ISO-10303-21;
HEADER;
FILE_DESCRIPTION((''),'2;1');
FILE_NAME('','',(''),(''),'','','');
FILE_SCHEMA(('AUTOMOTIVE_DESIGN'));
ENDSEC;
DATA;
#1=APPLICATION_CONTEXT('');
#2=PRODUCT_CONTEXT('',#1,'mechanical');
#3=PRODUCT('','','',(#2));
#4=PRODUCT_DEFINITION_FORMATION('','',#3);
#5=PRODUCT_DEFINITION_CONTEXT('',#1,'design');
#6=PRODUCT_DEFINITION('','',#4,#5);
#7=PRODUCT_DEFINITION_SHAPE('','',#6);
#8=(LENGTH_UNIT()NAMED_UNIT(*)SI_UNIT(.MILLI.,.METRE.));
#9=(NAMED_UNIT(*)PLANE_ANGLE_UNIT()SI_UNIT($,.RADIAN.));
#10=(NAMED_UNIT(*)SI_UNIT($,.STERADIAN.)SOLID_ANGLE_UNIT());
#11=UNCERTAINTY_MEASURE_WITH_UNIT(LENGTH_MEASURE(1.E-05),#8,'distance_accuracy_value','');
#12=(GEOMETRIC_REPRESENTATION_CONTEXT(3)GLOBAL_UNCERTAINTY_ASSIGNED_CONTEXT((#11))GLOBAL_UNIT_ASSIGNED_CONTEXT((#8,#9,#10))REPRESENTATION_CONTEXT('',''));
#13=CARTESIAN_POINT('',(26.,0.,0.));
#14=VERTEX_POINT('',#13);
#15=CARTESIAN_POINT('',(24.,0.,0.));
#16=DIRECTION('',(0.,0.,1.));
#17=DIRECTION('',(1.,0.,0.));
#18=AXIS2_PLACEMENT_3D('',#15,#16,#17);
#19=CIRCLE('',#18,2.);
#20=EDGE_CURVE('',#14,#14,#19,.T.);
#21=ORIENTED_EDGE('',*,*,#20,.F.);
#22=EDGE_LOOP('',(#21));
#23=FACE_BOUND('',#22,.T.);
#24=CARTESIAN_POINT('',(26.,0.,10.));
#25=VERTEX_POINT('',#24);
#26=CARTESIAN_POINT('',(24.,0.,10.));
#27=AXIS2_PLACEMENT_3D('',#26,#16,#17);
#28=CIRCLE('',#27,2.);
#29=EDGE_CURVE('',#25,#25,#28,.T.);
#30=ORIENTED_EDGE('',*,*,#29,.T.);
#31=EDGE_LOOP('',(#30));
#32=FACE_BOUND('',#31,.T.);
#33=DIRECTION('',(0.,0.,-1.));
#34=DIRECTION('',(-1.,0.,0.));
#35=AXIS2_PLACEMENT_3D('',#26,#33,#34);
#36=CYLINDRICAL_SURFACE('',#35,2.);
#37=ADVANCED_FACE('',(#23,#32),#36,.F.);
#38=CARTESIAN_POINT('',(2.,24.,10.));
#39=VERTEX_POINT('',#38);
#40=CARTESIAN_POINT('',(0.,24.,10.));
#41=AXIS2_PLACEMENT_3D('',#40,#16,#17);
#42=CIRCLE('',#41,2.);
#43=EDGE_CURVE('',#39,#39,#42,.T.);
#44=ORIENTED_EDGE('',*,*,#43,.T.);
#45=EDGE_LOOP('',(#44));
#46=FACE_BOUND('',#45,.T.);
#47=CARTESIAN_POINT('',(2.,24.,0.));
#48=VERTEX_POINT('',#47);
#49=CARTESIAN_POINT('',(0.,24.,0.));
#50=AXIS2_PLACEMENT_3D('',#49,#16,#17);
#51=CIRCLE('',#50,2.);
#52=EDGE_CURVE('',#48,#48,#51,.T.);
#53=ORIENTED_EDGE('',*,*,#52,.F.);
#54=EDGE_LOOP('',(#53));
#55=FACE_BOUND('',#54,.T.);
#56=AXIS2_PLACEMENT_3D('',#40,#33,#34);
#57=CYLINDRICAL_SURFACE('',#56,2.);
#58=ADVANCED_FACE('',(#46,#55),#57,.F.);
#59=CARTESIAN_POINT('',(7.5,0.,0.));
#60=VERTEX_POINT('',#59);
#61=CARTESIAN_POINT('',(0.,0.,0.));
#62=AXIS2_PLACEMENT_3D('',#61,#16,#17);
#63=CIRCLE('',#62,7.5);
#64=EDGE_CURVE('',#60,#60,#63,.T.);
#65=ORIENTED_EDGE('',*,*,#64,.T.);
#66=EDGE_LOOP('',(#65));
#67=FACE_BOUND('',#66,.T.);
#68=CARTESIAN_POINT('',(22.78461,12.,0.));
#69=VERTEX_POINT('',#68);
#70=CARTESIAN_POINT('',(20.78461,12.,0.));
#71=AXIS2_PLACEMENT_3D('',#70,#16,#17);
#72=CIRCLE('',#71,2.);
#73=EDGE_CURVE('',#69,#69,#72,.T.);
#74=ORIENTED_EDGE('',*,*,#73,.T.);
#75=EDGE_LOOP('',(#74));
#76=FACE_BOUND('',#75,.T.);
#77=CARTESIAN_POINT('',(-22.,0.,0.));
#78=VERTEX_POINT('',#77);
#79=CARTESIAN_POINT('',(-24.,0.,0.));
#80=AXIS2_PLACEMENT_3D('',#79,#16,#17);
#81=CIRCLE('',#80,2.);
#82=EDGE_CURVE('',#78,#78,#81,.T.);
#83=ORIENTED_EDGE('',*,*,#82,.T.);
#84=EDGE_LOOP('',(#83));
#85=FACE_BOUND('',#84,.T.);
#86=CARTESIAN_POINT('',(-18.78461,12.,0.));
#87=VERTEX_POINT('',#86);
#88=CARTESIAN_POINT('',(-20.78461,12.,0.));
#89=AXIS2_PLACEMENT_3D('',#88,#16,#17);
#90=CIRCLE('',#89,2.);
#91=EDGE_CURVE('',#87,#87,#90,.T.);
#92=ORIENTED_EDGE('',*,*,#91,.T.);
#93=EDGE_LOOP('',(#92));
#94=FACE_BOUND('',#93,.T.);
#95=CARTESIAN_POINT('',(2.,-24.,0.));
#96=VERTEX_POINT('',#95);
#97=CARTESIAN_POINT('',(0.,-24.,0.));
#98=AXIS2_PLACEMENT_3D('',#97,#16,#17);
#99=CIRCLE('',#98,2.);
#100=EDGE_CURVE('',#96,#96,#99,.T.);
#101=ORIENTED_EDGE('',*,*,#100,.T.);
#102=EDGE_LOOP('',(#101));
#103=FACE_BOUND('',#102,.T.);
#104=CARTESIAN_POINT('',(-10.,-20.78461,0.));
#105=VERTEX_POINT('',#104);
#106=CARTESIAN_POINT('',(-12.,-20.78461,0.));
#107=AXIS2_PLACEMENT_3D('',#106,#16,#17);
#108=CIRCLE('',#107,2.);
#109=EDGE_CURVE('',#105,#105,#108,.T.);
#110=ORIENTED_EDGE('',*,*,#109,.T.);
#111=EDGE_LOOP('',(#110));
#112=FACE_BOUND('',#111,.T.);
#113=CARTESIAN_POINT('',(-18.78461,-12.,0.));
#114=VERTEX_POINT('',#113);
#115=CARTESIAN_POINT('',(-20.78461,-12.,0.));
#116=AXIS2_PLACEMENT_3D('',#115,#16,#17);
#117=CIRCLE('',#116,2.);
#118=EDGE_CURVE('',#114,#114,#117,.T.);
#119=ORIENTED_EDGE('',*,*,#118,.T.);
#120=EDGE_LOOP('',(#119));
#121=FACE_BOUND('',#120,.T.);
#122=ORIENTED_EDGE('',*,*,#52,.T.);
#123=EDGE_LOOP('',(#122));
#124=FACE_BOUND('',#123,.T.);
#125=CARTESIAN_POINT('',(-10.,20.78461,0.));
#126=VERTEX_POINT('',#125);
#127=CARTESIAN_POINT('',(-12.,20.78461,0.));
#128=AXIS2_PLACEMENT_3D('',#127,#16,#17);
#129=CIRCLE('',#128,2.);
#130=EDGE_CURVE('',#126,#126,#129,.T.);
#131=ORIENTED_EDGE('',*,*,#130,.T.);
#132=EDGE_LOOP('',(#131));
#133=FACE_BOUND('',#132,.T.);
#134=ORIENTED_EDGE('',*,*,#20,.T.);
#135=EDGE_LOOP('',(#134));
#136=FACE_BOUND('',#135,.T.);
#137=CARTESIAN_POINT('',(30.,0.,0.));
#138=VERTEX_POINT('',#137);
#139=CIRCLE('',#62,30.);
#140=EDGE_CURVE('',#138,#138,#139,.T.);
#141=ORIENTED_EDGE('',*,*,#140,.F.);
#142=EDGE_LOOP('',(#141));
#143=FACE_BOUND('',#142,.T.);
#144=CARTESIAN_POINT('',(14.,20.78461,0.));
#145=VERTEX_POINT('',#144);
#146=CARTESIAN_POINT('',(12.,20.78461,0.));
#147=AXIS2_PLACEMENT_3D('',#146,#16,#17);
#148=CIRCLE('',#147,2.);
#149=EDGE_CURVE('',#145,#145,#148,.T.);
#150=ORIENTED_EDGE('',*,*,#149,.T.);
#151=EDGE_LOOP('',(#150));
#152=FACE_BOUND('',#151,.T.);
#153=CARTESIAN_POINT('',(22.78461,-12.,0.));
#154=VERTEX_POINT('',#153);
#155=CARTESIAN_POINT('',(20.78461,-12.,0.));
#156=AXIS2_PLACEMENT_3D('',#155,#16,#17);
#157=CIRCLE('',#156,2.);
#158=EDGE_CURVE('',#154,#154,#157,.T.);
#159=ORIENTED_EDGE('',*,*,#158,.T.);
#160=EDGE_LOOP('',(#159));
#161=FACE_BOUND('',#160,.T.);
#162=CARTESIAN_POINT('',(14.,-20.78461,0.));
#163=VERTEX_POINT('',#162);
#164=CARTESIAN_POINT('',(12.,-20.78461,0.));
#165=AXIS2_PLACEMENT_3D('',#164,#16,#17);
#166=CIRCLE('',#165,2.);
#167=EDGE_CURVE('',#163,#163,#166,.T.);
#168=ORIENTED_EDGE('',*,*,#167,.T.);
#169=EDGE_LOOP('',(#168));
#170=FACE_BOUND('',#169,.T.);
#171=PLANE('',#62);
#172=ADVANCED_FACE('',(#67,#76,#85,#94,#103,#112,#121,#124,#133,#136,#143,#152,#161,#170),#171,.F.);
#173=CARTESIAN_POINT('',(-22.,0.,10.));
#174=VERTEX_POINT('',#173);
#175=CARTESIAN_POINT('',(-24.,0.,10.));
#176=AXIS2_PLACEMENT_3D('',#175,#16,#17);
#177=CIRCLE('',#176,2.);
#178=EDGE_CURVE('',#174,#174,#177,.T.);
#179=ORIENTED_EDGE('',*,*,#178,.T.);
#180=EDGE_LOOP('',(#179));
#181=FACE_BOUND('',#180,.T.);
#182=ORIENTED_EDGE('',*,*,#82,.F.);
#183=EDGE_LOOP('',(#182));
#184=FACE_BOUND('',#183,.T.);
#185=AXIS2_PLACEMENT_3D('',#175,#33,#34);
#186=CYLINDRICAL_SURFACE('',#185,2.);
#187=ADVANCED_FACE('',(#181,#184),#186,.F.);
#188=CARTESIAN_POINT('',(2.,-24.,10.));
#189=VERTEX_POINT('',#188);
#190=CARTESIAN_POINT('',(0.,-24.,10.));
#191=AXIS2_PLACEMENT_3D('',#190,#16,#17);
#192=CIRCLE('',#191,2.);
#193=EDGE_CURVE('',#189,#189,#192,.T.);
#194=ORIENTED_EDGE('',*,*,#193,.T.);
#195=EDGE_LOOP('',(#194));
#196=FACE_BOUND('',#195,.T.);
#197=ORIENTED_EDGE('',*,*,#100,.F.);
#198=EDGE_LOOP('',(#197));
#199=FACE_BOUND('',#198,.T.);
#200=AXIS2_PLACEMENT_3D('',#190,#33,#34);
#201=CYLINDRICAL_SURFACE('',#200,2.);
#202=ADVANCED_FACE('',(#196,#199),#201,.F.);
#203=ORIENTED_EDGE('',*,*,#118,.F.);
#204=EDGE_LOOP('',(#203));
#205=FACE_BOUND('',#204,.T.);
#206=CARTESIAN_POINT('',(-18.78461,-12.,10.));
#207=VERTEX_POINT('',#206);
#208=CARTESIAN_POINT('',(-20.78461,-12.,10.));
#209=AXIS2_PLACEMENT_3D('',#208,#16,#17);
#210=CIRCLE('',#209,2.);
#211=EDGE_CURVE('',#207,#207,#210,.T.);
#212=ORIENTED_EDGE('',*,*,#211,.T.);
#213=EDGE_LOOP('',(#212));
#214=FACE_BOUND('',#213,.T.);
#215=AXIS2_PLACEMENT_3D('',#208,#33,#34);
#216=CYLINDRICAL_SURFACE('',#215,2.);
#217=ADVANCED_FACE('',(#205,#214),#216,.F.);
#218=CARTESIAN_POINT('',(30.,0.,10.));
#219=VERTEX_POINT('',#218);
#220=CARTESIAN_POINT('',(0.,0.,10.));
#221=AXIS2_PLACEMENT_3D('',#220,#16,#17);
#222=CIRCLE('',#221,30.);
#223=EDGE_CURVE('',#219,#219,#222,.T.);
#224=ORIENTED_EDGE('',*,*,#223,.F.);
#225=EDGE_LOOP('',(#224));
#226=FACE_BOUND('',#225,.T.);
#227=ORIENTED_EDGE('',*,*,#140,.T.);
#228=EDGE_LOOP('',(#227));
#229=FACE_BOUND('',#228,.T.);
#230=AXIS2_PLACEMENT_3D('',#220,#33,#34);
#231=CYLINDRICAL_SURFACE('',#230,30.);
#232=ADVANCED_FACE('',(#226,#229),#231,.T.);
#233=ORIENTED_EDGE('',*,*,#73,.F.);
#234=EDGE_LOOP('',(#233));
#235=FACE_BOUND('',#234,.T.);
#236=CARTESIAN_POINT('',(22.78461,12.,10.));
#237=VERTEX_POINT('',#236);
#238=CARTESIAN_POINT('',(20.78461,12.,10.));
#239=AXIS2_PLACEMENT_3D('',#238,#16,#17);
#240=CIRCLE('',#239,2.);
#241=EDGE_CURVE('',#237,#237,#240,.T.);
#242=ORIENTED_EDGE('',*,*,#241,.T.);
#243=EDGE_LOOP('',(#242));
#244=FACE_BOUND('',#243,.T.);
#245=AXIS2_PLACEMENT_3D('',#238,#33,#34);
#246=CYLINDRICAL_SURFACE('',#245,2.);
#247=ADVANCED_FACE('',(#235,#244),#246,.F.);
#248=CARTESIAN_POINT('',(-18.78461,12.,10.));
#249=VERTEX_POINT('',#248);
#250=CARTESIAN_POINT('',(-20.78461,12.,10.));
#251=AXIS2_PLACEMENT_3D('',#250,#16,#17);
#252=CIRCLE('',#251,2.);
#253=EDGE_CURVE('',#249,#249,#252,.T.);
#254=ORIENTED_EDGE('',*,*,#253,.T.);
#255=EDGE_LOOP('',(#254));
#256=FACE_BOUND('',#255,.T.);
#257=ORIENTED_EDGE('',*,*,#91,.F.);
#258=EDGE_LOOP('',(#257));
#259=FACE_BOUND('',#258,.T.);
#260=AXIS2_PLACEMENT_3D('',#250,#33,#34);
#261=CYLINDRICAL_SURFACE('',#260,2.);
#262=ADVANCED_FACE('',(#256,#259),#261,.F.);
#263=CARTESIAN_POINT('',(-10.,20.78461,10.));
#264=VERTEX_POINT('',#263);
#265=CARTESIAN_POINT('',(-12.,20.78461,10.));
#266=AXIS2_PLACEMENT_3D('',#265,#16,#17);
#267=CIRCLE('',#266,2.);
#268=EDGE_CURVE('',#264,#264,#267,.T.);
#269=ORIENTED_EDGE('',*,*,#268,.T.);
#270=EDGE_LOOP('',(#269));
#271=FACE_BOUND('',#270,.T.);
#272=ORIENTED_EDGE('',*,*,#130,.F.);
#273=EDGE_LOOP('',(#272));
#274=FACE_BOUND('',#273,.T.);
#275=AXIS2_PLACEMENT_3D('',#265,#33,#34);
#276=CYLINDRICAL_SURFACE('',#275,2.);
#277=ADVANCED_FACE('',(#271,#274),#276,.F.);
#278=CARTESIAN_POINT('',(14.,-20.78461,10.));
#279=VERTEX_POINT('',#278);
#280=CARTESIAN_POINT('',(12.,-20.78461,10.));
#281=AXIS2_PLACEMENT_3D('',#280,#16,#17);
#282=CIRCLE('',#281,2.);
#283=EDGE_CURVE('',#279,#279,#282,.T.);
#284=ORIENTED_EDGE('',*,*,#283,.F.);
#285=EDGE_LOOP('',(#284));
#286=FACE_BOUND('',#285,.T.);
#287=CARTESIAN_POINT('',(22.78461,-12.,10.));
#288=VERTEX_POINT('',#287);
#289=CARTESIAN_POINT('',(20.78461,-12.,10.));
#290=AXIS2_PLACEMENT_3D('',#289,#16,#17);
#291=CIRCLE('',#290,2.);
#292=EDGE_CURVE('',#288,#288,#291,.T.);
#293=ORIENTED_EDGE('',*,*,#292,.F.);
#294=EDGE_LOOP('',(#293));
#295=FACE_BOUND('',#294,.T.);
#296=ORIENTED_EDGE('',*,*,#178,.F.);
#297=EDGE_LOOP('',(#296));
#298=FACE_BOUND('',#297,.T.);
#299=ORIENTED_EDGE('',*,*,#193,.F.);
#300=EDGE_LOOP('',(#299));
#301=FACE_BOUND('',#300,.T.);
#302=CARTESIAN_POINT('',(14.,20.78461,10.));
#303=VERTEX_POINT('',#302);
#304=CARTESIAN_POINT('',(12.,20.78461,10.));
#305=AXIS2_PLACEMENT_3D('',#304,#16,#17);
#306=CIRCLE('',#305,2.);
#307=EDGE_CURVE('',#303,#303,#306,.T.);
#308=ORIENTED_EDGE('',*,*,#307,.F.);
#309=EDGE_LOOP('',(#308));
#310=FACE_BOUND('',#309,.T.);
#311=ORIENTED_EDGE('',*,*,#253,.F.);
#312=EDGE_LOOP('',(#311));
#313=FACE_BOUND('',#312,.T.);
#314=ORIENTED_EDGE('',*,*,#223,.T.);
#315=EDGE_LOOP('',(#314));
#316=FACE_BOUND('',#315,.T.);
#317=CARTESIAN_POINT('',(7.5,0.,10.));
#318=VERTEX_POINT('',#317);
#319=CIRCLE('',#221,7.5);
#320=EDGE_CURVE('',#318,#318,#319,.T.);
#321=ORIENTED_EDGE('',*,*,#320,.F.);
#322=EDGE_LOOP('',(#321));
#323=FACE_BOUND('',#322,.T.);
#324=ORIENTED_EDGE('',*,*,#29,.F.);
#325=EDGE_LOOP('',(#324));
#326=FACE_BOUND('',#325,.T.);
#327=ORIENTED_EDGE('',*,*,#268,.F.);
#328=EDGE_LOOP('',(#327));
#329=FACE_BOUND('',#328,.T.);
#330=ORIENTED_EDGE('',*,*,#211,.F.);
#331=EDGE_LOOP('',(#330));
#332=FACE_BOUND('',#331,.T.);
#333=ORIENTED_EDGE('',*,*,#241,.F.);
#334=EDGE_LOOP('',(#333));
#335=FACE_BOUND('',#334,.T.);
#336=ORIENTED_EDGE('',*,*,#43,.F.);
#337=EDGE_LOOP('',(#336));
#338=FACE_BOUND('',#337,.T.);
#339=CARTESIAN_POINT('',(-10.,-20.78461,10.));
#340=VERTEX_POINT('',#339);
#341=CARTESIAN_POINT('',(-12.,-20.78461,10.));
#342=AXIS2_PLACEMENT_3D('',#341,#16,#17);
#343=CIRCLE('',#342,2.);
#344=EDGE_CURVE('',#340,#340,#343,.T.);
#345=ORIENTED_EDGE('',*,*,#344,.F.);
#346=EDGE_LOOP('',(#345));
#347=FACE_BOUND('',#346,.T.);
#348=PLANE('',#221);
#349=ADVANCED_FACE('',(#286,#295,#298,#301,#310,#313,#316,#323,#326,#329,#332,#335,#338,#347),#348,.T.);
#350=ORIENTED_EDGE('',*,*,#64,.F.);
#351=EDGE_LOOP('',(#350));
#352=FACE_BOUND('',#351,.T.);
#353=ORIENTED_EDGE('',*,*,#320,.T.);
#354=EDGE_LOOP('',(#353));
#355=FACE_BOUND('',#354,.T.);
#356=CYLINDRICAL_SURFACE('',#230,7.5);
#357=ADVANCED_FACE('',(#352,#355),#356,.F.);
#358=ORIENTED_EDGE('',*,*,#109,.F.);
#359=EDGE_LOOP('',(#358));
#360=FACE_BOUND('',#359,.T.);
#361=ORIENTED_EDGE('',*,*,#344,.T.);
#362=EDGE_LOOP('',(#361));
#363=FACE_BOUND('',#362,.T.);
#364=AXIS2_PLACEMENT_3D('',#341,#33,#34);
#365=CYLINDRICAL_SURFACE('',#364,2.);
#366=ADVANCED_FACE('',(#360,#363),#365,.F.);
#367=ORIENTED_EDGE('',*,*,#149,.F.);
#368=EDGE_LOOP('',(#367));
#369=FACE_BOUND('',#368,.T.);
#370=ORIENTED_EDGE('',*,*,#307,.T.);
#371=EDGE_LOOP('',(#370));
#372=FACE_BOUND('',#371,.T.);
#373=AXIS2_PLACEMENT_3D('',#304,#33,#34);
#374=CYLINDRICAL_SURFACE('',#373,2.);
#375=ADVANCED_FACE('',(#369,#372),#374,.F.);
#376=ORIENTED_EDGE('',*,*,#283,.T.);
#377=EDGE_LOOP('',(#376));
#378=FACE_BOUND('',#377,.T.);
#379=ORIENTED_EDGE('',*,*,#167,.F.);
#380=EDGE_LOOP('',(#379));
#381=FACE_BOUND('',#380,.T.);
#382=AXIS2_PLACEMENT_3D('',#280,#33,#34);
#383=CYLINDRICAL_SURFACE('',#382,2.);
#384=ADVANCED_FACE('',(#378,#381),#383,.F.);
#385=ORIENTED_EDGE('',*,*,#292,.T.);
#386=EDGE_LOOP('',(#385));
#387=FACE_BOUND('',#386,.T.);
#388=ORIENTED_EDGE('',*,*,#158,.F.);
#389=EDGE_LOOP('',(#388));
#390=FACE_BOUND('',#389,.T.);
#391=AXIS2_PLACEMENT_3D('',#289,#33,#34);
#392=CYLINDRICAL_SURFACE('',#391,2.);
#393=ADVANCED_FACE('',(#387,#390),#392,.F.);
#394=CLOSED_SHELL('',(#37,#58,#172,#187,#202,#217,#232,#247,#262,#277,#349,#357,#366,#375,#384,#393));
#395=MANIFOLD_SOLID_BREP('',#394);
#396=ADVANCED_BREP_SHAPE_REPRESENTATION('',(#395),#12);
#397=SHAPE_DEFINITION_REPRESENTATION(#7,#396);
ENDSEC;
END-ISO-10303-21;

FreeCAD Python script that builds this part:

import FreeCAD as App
import Part
import Sketcher

V = App.Vector

doc = App.newDocument("Part")
params = doc.addObject("Spreadsheet::Sheet", "Params")
for row, (alias, value) in enumerate([
    ("sketch1_diameter", "60 mm"),
    ("pad1_length", "10 mm"),
    ("sketch2_diameter", "15 mm"),
    ("sketch3_diameter", "4 mm"),
], start=1):
    params.set(f"A{row}", alias)
    params.set(f"B{row}", "=" + value)
    params.setAlias(f"B{row}", alias)

body = doc.addObject("PartDesign::Body", "Body")

# Sketch on XY plane
sketch1 = doc.addObject("Sketcher::SketchObject", "Sketch")
body.addObject(sketch1)
sketch1.AttachmentSupport = (doc.XY_Plane, [""])
sketch1.MapMode = "FlatFace"
sketch1.addGeometry(Part.Circle(V(0, 0, 0), V(0, 0, 1), 30), False)
sketch1.addConstraint(Sketcher.Constraint("Coincident", 0, 3, -1, 1))
sketch1.addConstraint(Sketcher.Constraint("Diameter", 0, 60.0))
sketch1.setExpression("Constraints[1]", "Params.sketch1_diameter")
pad1 = doc.addObject("PartDesign::Pad", "Pad")
body.addObject(pad1)
pad1.Profile = sketch1
pad1.setExpression("Length", "Params.pad1_length")

# Sketch on XY plane
sketch2 = doc.addObject("Sketcher::SketchObject", "Sketch001")
body.addObject(sketch2)
sketch2.AttachmentSupport = (doc.XY_Plane, [""])
sketch2.MapMode = "FlatFace"
sketch2.addGeometry(Part.Circle(V(0, 0, 0), V(0, 0, 1), 8), False)
sketch2.addConstraint(Sketcher.Constraint("Coincident", 0, 3, -1, 1))
sketch2.addConstraint(Sketcher.Constraint("Diameter", 0, 15.0))
sketch2.setExpression("Constraints[1]", "Params.sketch2_diameter")
pocket1 = doc.addObject("PartDesign::Pocket", "Pocket")
body.addObject(pocket1)
pocket1.Profile = sketch2
pocket1.Type = "ThroughAll"
pocket1.Reversed = True

# Sketch on XY plane
sketch3 = doc.addObject("Sketcher::SketchObject", "Sketch002")
body.addObject(sketch3)
sketch3.AttachmentSupport = (doc.XY_Plane, [""])
sketch3.MapMode = "FlatFace"
sketch3.addGeometry(Part.Circle(V(24, 0, 0), V(0, 0, 1), 2), False)
sketch3.addGeometry(Part.Circle(V(20.8, 12, 0), V(0, 0, 1), 2), False)
sketch3.addGeometry(Part.Circle(V(12, 20.8, 0), V(0, 0, 1), 2), False)
sketch3.addGeometry(Part.Circle(V(0, 24, 0), V(0, 0, 1), 2), False)
sketch3.addGeometry(Part.Circle(V(-12, 20.8, 0), V(0, 0, 1), 2), False)
sketch3.addGeometry(Part.Circle(V(-20.8, 12, 0), V(0, 0, 1), 2), False)
sketch3.addGeometry(Part.Circle(V(-24, 0, 0), V(0, 0, 1), 2), False)
sketch3.addGeometry(Part.Circle(V(-20.8, -12, 0), V(0, 0, 1), 2), False)
sketch3.addGeometry(Part.Circle(V(-12, -20.8, 0), V(0, 0, 1), 2), False)
sketch3.addGeometry(Part.Circle(V(0, -24, 0), V(0, 0, 1), 2), False)
sketch3.addGeometry(Part.Circle(V(12, -20.8, 0), V(0, 0, 1), 2), False)
sketch3.addGeometry(Part.Circle(V(20.8, -12, 0), V(0, 0, 1), 2), False)
sketch3.addConstraint(Sketcher.Constraint("Equal", 0, 1))
sketch3.addConstraint(Sketcher.Constraint("Equal", 1, 2))
sketch3.addConstraint(Sketcher.Constraint("Equal", 2, 3))
sketch3.addConstraint(Sketcher.Constraint("Equal", 3, 4))
sketch3.addConstraint(Sketcher.Constraint("Equal", 4, 5))
sketch3.addConstraint(Sketcher.Constraint("Equal", 5, 6))
sketch3.addConstraint(Sketcher.Constraint("Equal", 6, 7))
sketch3.addConstraint(Sketcher.Constraint("Equal", 7, 8))
sketch3.addConstraint(Sketcher.Constraint("Equal", 8, 9))
sketch3.addConstraint(Sketcher.Constraint("Equal", 9, 10))
sketch3.addConstraint(Sketcher.Constraint("Equal", 10, 11))
sketch3.addConstraint(Sketcher.Constraint("Symmetric", 0, 3, 6, 3, -1, 1))
sketch3.addConstraint(Sketcher.Constraint("Symmetric", 1, 3, 7, 3, -1, 1))
sketch3.addConstraint(Sketcher.Constraint("Symmetric", 2, 3, 8, 3, -1, 1))
sketch3.addConstraint(Sketcher.Constraint("Symmetric", 3, 3, 9, 3, -1, 1))
sketch3.addConstraint(Sketcher.Constraint("Symmetric", 4, 3, 10, 3, -1, 1))
sketch3.addConstraint(Sketcher.Constraint("Symmetric", 5, 3, 11, 3, -1, 1))
sketch3.addConstraint(Sketcher.Constraint("Symmetric", 2, 3, 4, 3, -2))
sketch3.addConstraint(Sketcher.Constraint("Symmetric", 1, 3, 5, 3, -2))
sketch3.addConstraint(Sketcher.Constraint("PointOnObject", 0, 3, -1))
sketch3.addConstraint(Sketcher.Constraint("PointOnObject", 3, 3, -2))
sketch3.addConstraint(Sketcher.Constraint("Diameter", 0, 4.0))
sketch3.addConstraint(Sketcher.Constraint("DistanceX", -1, 1, 0, 3, 24.0))
sketch3.addConstraint(Sketcher.Constraint("DistanceY", -1, 1, 1, 3, 12.0))
sketch3.addConstraint(Sketcher.Constraint("DistanceX", -1, 1, 2, 3, 12.0))
sketch3.addConstraint(Sketcher.Constraint("DistanceY", -1, 1, 3, 3, 24.0))
sketch3.addConstraint(Sketcher.Constraint("DistanceX", -1, 1, 1, 3, 20.78461))
sketch3.addConstraint(Sketcher.Constraint("DistanceY", -1, 1, 2, 3, 20.78461))
sketch3.setExpression("Constraints[21]", "Params.sketch3_diameter")
pocket2 = doc.addObject("PartDesign::Pocket", "Pocket001")
body.addObject(pocket2)
pocket2.Profile = sketch3
pocket2.Type = "ThroughAll"
pocket2.Reversed = True

doc.recompute()
